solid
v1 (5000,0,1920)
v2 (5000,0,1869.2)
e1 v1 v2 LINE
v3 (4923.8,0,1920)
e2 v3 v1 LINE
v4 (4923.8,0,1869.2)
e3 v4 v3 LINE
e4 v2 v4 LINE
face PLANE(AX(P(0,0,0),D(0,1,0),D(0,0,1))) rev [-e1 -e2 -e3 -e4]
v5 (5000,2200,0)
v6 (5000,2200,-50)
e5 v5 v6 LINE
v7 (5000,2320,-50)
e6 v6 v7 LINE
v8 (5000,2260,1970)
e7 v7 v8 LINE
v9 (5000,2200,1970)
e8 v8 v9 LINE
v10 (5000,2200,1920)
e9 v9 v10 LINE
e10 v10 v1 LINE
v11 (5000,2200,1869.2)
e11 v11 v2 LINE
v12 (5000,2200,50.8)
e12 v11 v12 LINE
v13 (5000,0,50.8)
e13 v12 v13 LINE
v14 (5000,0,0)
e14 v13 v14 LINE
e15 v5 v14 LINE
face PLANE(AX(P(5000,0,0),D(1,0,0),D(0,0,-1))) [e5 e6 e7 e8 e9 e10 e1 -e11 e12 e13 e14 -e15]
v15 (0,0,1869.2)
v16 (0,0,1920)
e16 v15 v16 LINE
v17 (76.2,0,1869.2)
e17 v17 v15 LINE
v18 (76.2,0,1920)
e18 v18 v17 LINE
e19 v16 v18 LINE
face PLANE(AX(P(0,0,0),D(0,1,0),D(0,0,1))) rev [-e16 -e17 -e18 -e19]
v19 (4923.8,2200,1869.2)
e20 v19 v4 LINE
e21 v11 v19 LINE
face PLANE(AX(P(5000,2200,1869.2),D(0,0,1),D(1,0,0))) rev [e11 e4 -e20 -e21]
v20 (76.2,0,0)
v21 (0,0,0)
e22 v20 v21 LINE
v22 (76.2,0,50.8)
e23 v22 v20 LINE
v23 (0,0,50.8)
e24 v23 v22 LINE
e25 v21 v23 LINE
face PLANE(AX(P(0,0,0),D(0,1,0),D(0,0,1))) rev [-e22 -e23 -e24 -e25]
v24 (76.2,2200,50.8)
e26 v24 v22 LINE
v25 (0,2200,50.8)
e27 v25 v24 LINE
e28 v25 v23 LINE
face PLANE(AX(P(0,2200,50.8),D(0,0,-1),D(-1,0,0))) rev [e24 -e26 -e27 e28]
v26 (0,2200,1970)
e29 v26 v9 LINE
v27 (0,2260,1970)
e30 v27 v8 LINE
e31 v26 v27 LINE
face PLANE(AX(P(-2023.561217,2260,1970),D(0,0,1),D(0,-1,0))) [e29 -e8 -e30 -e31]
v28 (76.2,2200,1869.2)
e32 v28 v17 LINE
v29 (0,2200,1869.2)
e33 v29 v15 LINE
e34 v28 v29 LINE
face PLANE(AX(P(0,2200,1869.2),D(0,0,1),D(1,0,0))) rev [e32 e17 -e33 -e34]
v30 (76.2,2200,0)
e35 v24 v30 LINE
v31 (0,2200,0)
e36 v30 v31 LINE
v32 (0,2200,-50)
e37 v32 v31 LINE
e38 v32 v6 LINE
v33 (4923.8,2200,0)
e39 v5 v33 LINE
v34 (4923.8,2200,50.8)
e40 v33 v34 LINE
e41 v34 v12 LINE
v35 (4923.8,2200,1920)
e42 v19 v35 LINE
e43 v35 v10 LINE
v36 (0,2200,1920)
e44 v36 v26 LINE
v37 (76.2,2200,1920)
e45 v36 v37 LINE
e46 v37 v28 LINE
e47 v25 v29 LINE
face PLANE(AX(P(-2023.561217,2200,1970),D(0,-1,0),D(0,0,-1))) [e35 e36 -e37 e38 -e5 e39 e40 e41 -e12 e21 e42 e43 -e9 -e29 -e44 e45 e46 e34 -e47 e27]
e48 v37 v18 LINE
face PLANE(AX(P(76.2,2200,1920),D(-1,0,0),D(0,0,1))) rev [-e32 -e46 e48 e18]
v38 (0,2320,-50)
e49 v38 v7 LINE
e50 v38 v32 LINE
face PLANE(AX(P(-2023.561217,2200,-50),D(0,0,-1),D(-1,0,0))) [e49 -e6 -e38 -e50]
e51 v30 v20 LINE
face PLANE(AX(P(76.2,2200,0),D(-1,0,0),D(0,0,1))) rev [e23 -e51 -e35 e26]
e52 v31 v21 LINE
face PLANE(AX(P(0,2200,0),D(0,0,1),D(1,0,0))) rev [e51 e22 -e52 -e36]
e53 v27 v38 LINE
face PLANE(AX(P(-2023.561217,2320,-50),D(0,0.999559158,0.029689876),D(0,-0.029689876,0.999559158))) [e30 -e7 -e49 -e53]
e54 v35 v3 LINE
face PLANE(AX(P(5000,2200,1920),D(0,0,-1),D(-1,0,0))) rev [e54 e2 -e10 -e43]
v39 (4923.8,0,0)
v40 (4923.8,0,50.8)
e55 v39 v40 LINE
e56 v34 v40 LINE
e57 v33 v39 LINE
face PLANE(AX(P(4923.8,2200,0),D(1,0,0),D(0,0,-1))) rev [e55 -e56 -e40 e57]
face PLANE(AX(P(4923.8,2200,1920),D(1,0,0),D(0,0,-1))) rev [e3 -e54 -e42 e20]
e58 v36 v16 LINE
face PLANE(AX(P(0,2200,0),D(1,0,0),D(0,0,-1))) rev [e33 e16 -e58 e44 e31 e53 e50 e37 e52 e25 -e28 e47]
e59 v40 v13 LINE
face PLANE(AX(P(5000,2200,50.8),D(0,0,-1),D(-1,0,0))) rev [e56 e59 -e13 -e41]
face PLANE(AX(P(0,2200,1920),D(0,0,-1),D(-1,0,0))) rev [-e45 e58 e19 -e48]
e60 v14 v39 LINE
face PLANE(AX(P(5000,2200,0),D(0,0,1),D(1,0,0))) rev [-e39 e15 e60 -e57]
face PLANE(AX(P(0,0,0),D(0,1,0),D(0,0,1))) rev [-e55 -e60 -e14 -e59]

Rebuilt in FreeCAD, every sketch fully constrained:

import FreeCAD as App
import Part
import Sketcher

V = App.Vector
Q = App.Units.Quantity

doc = App.newDocument("Part")
params = doc.addObject("Spreadsheet::Sheet", "Params")
for row, (alias, value) in enumerate([
    ("sketch1_width", "76.2 mm"),
    ("sketch1_height", "50.8 mm"),
    ("pad1_length", "2200 mm"),
    ("sketch2_width", "76.2 mm"),
    ("sketch2_height", "50.8 mm"),
    ("pad2_length", "2200 mm"),
    ("sketch3_width", "76.2 mm"),
    ("sketch3_height", "50.8 mm"),
    ("pad3_length", "2200 mm"),
    ("sketch4_width", "76.2 mm"),
    ("sketch4_height", "50.8 mm"),
    ("pad4_length", "2200 mm"),
    ("sketch5_width", "120 mm"),
    ("sketch5_width2", "60 mm"),
    ("sketch5_height", "2020 mm"),
    ("pad5_length", "5000 mm"),
], start=1):
    params.set(f"A{row}", alias)
    params.set(f"B{row}", "=" + value)
    params.setAlias(f"B{row}", alias)

body = doc.addObject("PartDesign::Body", "Body")

# Sketch on XZ plane
sketch1 = body.newObject("Sketcher::SketchObject", "Sketch")
sketch1.AttachmentSupport = (doc.getObject("XZ_Plane"), [""])
sketch1.MapMode = "FlatFace"
sketch1.addGeometry(Part.LineSegment(V(0, 0, 0), V(0, 50.8, 0)), False)
sketch1.addGeometry(Part.LineSegment(V(0, 50.8, 0), V(76.2, 50.8, 0)), False)
sketch1.addGeometry(Part.LineSegment(V(76.2, 50.8, 0), V(76.2, 0, 0)), False)
sketch1.addGeometry(Part.LineSegment(V(76.2, 0, 0), V(0, 0, 0)), False)
sketch1.addConstraint(Sketcher.Constraint("Coincident", 0, 2, 1, 1))
sketch1.addConstraint(Sketcher.Constraint("Coincident", 1, 2, 2, 1))
sketch1.addConstraint(Sketcher.Constraint("Coincident", 2, 2, 3, 1))
sketch1.addConstraint(Sketcher.Constraint("Coincident", 3, 2, 0, 1))
sketch1.addConstraint(Sketcher.Constraint("Vertical", 0))
sketch1.addConstraint(Sketcher.Constraint("Horizontal", 1))
sketch1.addConstraint(Sketcher.Constraint("Vertical", 2))
sketch1.addConstraint(Sketcher.Constraint("Horizontal", 3))
sketch1.addConstraint(Sketcher.Constraint("Coincident", 3, 2, -1, 1))
sketch1.addConstraint(Sketcher.Constraint("DistanceX", 1, 1, 1, 2, Q("76.2 mm")))
sketch1.addConstraint(Sketcher.Constraint("DistanceY", 0, 1, 0, 2, Q("50.8 mm")))
sketch1.setExpression("Constraints[9]", "Params.sketch1_width")
sketch1.setExpression("Constraints[10]", "Params.sketch1_height")
pad1 = body.newObject("PartDesign::Pad", "Pad")
pad1.Profile = sketch1
pad1.setExpression("Length", "Params.pad1_length")
pad1.Reversed = True
body2 = doc.addObject("PartDesign::Body", "Body001")

# Sketch on XZ plane
sketch2 = body2.newObject("Sketcher::SketchObject", "Sketch001")
sketch2.AttachmentSupport = (doc.getObject("XZ_Plane001"), [""])
sketch2.MapMode = "FlatFace"
sketch2.addGeometry(Part.LineSegment(V(4923.8, 0, 0), V(4923.8, 50.8, 0)), False)
sketch2.addGeometry(Part.LineSegment(V(4923.8, 50.8, 0), V(5000, 50.8, 0)), False)
sketch2.addGeometry(Part.LineSegment(V(5000, 50.8, 0), V(5000, 0, 0)), False)
sketch2.addGeometry(Part.LineSegment(V(5000, 0, 0), V(4923.8, 0, 0)), False)
sketch2.addConstraint(Sketcher.Constraint("Coincident", 0, 2, 1, 1))
sketch2.addConstraint(Sketcher.Constraint("Coincident", 1, 2, 2, 1))
sketch2.addConstraint(Sketcher.Constraint("Coincident", 2, 2, 3, 1))
sketch2.addConstraint(Sketcher.Constraint("Coincident", 3, 2, 0, 1))
sketch2.addConstraint(Sketcher.Constraint("Vertical", 0))
sketch2.addConstraint(Sketcher.Constraint("Horizontal", 1))
sketch2.addConstraint(Sketcher.Constraint("Vertical", 2))
sketch2.addConstraint(Sketcher.Constraint("Horizontal", 3))
sketch2.addConstraint(Sketcher.Constraint("PointOnObject", 2, 2, -1))
sketch2.addConstraint(Sketcher.Constraint("DistanceX", 1, 1, 1, 2, Q("76.2 mm")))
sketch2.addConstraint(Sketcher.Constraint("DistanceY", 0, 1, 0, 2, Q("50.8 mm")))
sketch2.addConstraint(Sketcher.Constraint("DistanceX", -1, 1, 1, 2, Q("5000 mm")))
sketch2.setExpression("Constraints[9]", "Params.sketch2_width")
sketch2.setExpression("Constraints[10]", "Params.sketch2_height")
pad2 = body2.newObject("PartDesign::Pad", "Pad001")
pad2.Profile = sketch2
pad2.setExpression("Length", "Params.pad2_length")
pad2.Reversed = True
body3 = doc.addObject("PartDesign::Body", "Body002")

# Sketch on XZ plane
sketch3 = body3.newObject("Sketcher::SketchObject", "Sketch002")
sketch3.AttachmentSupport = (doc.getObject("XZ_Plane002"), [""])
sketch3.MapMode = "FlatFace"
sketch3.addGeometry(Part.LineSegment(V(4923.8, 1869.2, 0), V(4923.8, 1920, 0)), False)
sketch3.addGeometry(Part.LineSegment(V(4923.8, 1920, 0), V(5000, 1920, 0)), False)
sketch3.addGeometry(Part.LineSegment(V(5000, 1920, 0), V(5000, 1869.2, 0)), False)
sketch3.addGeometry(Part.LineSegment(V(5000, 1869.2, 0), V(4923.8, 1869.2, 0)), False)
sketch3.addConstraint(Sketcher.Constraint("Coincident", 0, 2, 1, 1))
sketch3.addConstraint(Sketcher.Constraint("Coincident", 1, 2, 2, 1))
sketch3.addConstraint(Sketcher.Constraint("Coincident", 2, 2, 3, 1))
sketch3.addConstraint(Sketcher.Constraint("Coincident", 3, 2, 0, 1))
sketch3.addConstraint(Sketcher.Constraint("Vertical", 0))
sketch3.addConstraint(Sketcher.Constraint("Horizontal", 1))
sketch3.addConstraint(Sketcher.Constraint("Vertical", 2))
sketch3.addConstraint(Sketcher.Constraint("Horizontal", 3))
sketch3.addConstraint(Sketcher.Constraint("DistanceX", 1, 1, 1, 2, Q("76.2 mm")))
sketch3.addConstraint(Sketcher.Constraint("DistanceY", 0, 1, 0, 2, Q("50.8 mm")))
sketch3.addConstraint(Sketcher.Constraint("DistanceY", -1, 1, 0, 2, Q("1920 mm")))
sketch3.addConstraint(Sketcher.Constraint("DistanceX", -1, 1, 1, 2, Q("5000 mm")))
sketch3.setExpression("Constraints[8]", "Params.sketch3_width")
sketch3.setExpression("Constraints[9]", "Params.sketch3_height")
pad3 = body3.newObject("PartDesign::Pad", "Pad002")
pad3.Profile = sketch3
pad3.setExpression("Length", "Params.pad3_length")
pad3.Reversed = True
body4 = doc.addObject("PartDesign::Body", "Body003")

# Sketch on XZ plane
sketch4 = body4.newObject("Sketcher::SketchObject", "Sketch003")
sketch4.AttachmentSupport = (doc.getObject("XZ_Plane003"), [""])
sketch4.MapMode = "FlatFace"
sketch4.addGeometry(Part.LineSegment(V(0, 1869.2, 0), V(0, 1920, 0)), False)
sketch4.addGeometry(Part.LineSegment(V(0, 1920, 0), V(76.2, 1920, 0)), False)
sketch4.addGeometry(Part.LineSegment(V(76.2, 1920, 0), V(76.2, 1869.2, 0)), False)
sketch4.addGeometry(Part.LineSegment(V(76.2, 1869.2, 0), V(0, 1869.2, 0)), False)
sketch4.addConstraint(Sketcher.Constraint("Coincident", 0, 2, 1, 1))
sketch4.addConstraint(Sketcher.Constraint("Coincident", 1, 2, 2, 1))
sketch4.addConstraint(Sketcher.Constraint("Coincident", 2, 2, 3, 1))
sketch4.addConstraint(Sketcher.Constraint("Coincident", 3, 2, 0, 1))
sketch4.addConstraint(Sketcher.Constraint("Vertical", 0))
sketch4.addConstraint(Sketcher.Constraint("Horizontal", 1))
sketch4.addConstraint(Sketcher.Constraint("Vertical", 2))
sketch4.addConstraint(Sketcher.Constraint("Horizontal", 3))
sketch4.addConstraint(Sketcher.Constraint("PointOnObject", 0, 2, -2))
sketch4.addConstraint(Sketcher.Constraint("DistanceX", 1, 1, 1, 2, Q("76.2 mm")))
sketch4.addConstraint(Sketcher.Constraint("DistanceY", 0, 1, 0, 2, Q("50.8 mm")))
sketch4.addConstraint(Sketcher.Constraint("DistanceY", -1, 1, 0, 2, Q("1920 mm")))
sketch4.setExpression("Constraints[9]", "Params.sketch4_width")
sketch4.setExpression("Constraints[10]", "Params.sketch4_height")
pad4 = body4.newObject("PartDesign::Pad", "Pad003")
pad4.Profile = sketch4
pad4.setExpression("Length", "Params.pad4_length")
pad4.Reversed = True
body.AllowCompound = True
doc.recompute()

boolean = body.newObject("PartDesign::Boolean", "Boolean")
boolean.Type = "Fuse"
boolean.addObjects([body2])
doc.recompute()

boolean2 = body.newObject("PartDesign::Boolean", "Boolean001")
boolean2.Type = "Fuse"
boolean2.addObjects([body3])
doc.recompute()

boolean3 = body.newObject("PartDesign::Boolean", "Boolean002")
boolean3.Type = "Fuse"
boolean3.addObjects([body4])

# Sketch on YZ plane
sketch5 = body.newObject("Sketcher::SketchObject", "Sketch004")
sketch5.AttachmentSupport = (doc.getObject("YZ_Plane"), [""])
sketch5.MapMode = "FlatFace"
sketch5.AttachmentOffset = App.Placement(V(0, 0, 5000), App.Rotation())
sketch5.addGeometry(Part.LineSegment(V(2200, 1970, 0), V(2200, -50, 0)), False)
sketch5.addGeometry(Part.LineSegment(V(2200, -50, 0), V(2320, -50, 0)), False)
sketch5.addGeometry(Part.LineSegment(V(2320, -50, 0), V(2260, 1970, 0)), False)
sketch5.addGeometry(Part.LineSegment(V(2260, 1970, 0), V(2200, 1970, 0)), False)
sketch5.addConstraint(Sketcher.Constraint("Coincident", 0, 2, 1, 1))
sketch5.addConstraint(Sketcher.Constraint("Coincident", 1, 2, 2, 1))
sketch5.addConstraint(Sketcher.Constraint("Coincident", 2, 2, 3, 1))
sketch5.addConstraint(Sketcher.Constraint("Coincident", 3, 2, 0, 1))
sketch5.addConstraint(Sketcher.Constraint("Vertical", 0))
sketch5.addConstraint(Sketcher.Constraint("Horizontal", 1))
sketch5.addConstraint(Sketcher.Constraint("Horizontal", 3))
sketch5.addConstraint(Sketcher.Constraint("DistanceX", 1, 1, 1, 2, Q("120 mm")))
sketch5.addConstraint(Sketcher.Constraint("DistanceX", 3, 2, 3, 1, Q("60 mm")))
sketch5.addConstraint(Sketcher.Constraint("DistanceY", 0, 2, 0, 1, Q("2020 mm")))
sketch5.addConstraint(Sketcher.Constraint("DistanceX", -1, 1, 0, 2, Q("2200 mm")))
sketch5.addConstraint(Sketcher.Constraint("DistanceY", 0, 2, -1, 1, Q("50 mm")))
sketch5.setExpression("Constraints[7]", "Params.sketch5_width")
sketch5.setExpression("Constraints[8]", "Params.sketch5_width2")
sketch5.setExpression("Constraints[9]", "Params.sketch5_height")
pad5 = body.newObject("PartDesign::Pad", "Pad004")
pad5.Profile = sketch5
pad5.setExpression("Length", "Params.pad5_length")
pad5.Reversed = True

doc.recompute()
